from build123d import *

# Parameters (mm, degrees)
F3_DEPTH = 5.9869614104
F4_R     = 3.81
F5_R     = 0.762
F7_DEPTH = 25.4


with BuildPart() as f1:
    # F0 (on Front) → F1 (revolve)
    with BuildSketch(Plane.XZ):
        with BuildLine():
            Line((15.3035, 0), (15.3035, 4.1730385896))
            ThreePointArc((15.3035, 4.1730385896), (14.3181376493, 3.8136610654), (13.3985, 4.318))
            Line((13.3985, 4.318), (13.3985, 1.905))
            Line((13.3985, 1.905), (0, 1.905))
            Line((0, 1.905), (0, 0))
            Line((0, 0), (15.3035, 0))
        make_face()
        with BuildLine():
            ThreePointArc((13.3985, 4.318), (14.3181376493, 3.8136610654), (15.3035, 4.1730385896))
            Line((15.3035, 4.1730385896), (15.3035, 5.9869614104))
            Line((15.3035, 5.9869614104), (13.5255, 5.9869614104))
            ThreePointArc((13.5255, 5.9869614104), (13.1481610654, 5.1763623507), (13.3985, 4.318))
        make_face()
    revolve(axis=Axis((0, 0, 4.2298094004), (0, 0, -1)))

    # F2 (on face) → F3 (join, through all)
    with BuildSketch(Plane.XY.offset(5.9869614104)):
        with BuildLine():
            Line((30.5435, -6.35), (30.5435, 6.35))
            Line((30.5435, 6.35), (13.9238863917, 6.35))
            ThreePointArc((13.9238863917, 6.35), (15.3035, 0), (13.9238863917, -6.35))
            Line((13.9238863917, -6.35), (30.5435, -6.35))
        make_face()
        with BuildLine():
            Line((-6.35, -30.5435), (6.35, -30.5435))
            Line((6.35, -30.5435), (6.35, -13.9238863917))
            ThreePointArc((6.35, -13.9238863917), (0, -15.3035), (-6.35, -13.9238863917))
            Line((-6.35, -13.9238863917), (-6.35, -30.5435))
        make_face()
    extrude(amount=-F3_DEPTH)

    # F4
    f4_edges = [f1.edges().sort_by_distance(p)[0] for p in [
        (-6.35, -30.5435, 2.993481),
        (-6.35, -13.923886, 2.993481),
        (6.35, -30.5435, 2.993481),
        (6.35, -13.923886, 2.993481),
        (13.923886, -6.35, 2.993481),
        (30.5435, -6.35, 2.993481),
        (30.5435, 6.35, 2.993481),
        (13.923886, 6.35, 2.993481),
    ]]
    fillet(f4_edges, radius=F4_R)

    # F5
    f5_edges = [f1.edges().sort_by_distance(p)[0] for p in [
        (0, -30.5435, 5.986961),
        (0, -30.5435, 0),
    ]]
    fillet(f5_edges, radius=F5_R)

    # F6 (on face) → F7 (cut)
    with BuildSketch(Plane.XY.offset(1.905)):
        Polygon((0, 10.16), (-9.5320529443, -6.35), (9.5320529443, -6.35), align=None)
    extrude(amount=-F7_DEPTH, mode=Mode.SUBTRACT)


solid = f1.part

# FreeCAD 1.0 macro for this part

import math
import FreeCAD as App
import Part
import Sketcher
Q = App.Units.Quantity


def edges_at(feature, points):
    """Names of the edges that pass closest to the given points."""
    edges = feature.Shape.Edges
    near = lambda p: min(range(len(edges)), key=lambda i: edges[i].distToShape(Part.Vertex(*p))[0])
    return sorted({f"Edge{near(p) + 1}" for p in points})

doc = App.newDocument("Part")
params = doc.addObject("Spreadsheet::Sheet", "Params")
for row, (alias, value) in enumerate([
    ("sketch1_radius", "0.05 in"),
    ("sketch1_width", "0.07 in"),
    ("sketch1_height", "0.095 in"),
    ("sketch1_height2", "0.075 in"),
    ("revolution_angle", "360 deg"),
    ("sketch2_width", "0.5 in"),
    ("pad1_length", "5.986961 mm"),
    ("fillet_radius", "0.15 in"),
    ("fillet2_radius", "0.03 in"),
    ("pocket1_length", "1 in"),
], start=1):
    params.set(f"A{row}", alias)
    params.set(f"B{row}", "=" + value)
    params.setAlias(f"B{row}", alias)

body = doc.addObject("PartDesign::Body", "Body")

# Sketch on XZ plane
sketch1 = body.newObject("Sketcher::SketchObject", "Sketch")
sketch1.AttachmentSupport = (doc.getObject("XZ_Plane"), [""])
sketch1.MapMode = "FlatFace"
sketch1.addGeometry(Part.LineSegment(App.Vector(15.3, 0, 0), App.Vector(15.3, 6, 0)), False)
sketch1.addGeometry(Part.LineSegment(App.Vector(15.3, 6, 0), App.Vector(13.5, 6, 0)), False)
sketch1.addGeometry(Part.ArcOfCircle(Part.Circle(App.Vector(14.4, 5.1, 0), App.Vector(0, 0, 1), 1.3), math.radians(134), math.radians(217)), False)
sketch1.addGeometry(Part.LineSegment(App.Vector(13.4, 4.3, 0), App.Vector(13.4, 1.9, 0)), False)
sketch1.addGeometry(Part.LineSegment(App.Vector(13.4, 1.9, 0), App.Vector(0, 1.9, 0)), False)
sketch1.addGeometry(Part.LineSegment(App.Vector(0, 1.9, 0), App.Vector(0, 0, 0)), False)
sketch1.addGeometry(Part.LineSegment(App.Vector(0, 0, 0), App.Vector(15.3, 0, 0)), False)
sketch1.addConstraint(Sketcher.Constraint("Coincident", 0, 2, 1, 1))
sketch1.addConstraint(Sketcher.Constraint("Coincident", 1, 2, 2, 1))
sketch1.addConstraint(Sketcher.Constraint("Coincident", 2, 2, 3, 1))
sketch1.addConstraint(Sketcher.Constraint("Coincident", 3, 2, 4, 1))
sketch1.addConstraint(Sketcher.Constraint("Coincident", 4, 2, 5, 1))
sketch1.addConstraint(Sketcher.Constraint("Coincident", 5, 2, 6, 1))
sketch1.addConstraint(Sketcher.Constraint("Coincident", 6, 2, 0, 1))
sketch1.addConstraint(Sketcher.Constraint("Vertical", 0))
sketch1.addConstraint(Sketcher.Constraint("Horizontal", 1))
sketch1.addConstraint(Sketcher.Constraint("Vertical", 3))
sketch1.addConstraint(Sketcher.Constraint("Horizontal", 4))
sketch1.addConstraint(Sketcher.Constraint("Vertical", 5))
sketch1.addConstraint(Sketcher.Constraint("Horizontal", 6))
sketch1.addConstraint(Sketcher.Constraint("Coincident", 5, 2, -1, 1))
sketch1.addConstraint(Sketcher.Constraint("Radius", 2, Q("0.05 in")))
sketch1.addConstraint(Sketcher.Constraint("DistanceX", 1, 2, 1, 1, Q("0.07 in")))
sketch1.addConstraint(Sketcher.Constraint("DistanceY", -1, 1, 2, 3, Q("0.2 in")))
sketch1.addConstraint(Sketcher.Constraint("DistanceY", 3, 2, 3, 1, Q("0.095 in")))
sketch1.addConstraint(Sketcher.Constraint("DistanceY", 5, 2, 5, 1, Q("0.075 in")))
sketch1.addConstraint(Sketcher.Constraint("DistanceX", 4, 2, 4, 1, Q("0.5275 in")))
sketch1.addConstraint(Sketcher.Constraint("DistanceX", 6, 1, 6, 2, Q("0.6025 in")))
sketch1.setExpression("Constraints[14]", "Params.sketch1_radius")
sketch1.setExpression("Constraints[15]", "Params.sketch1_width")
sketch1.setExpression("Constraints[17]", "Params.sketch1_height")
sketch1.setExpression("Constraints[18]", "Params.sketch1_height2")
revolution = body.newObject("PartDesign::Revolution", "Revolution")
revolution.Profile = sketch1
revolution.ReferenceAxis = (sketch1, ["V_Axis"])
revolution.setExpression("Angle", "Params.revolution_angle")

# Sketch on XY plane
sketch2 = body.newObject("Sketcher::SketchObject", "Sketch001")
sketch2.AttachmentSupport = (doc.getObject("XY_Plane"), [""])
sketch2.MapMode = "FlatFace"
sketch2.AttachmentOffset = App.Placement(App.Vector(0, 0, 5.986961), App.Rotation())
sketch2.addGeometry(Part.LineSegment(App.Vector(31, -6, 0), App.Vector(31, 6, 0)), False)
sketch2.addGeometry(Part.LineSegment(App.Vector(31, 6, 0), App.Vector(14, 6, 0)), False)
sketch2.addGeometry(Part.ArcOfCircle(Part.Circle(App.Vector(0, 0, 0), App.Vector(0, 0, 1), 15), math.radians(-25), math.radians(25)), False)
sketch2.addGeometry(Part.LineSegment(App.Vector(14, -6, 0), App.Vector(31, -6, 0)), False)
sketch2.addGeometry(Part.LineSegment(App.Vector(-6, -31, 0), App.Vector(6, -31, 0)), False)
sketch2.addGeometry(Part.LineSegment(App.Vector(6, -31, 0), App.Vector(6, -14, 0)), False)
sketch2.addGeometry(Part.ArcOfCircle(Part.Circle(App.Vector(0, 0, 0), App.Vector(0, 0, 1), 15), math.radians(-115), math.radians(-65)), False)
sketch2.addGeometry(Part.LineSegment(App.Vector(-6, -14, 0), App.Vector(-6, -31, 0)), False)
sketch2.addConstraint(Sketcher.Constraint("Coincident", 0, 2, 1, 1))
sketch2.addConstraint(Sketcher.Constraint("Coincident", 1, 2, 2, 2))
sketch2.addConstraint(Sketcher.Constraint("Coincident", 2, 1, 3, 1))
sketch2.addConstraint(Sketcher.Constraint("Coincident", 3, 2, 0, 1))
sketch2.addConstraint(Sketcher.Constraint("Coincident", 4, 2, 5, 1))
sketch2.addConstraint(Sketcher.Constraint("Coincident", 5, 2, 6, 2))
sketch2.addConstraint(Sketcher.Constraint("Coincident", 6, 1, 7, 1))
sketch2.addConstraint(Sketcher.Constraint("Coincident", 7, 2, 4, 1))
sketch2.addConstraint(Sketcher.Constraint("Vertical", 0))
sketch2.addConstraint(Sketcher.Constraint("Horizontal", 1))
sketch2.addConstraint(Sketcher.Constraint("Horizontal", 3))
sketch2.addConstraint(Sketcher.Constraint("Horizontal", 4))
sketch2.addConstraint(Sketcher.Constraint("Vertical", 5))
sketch2.addConstraint(Sketcher.Constraint("Vertical", 7))
sketch2.addConstraint(Sketcher.Constraint("Coincident", 2, 3, -1, 1))
sketch2.addConstraint(Sketcher.Constraint("Coincident", 6, 3, -1, 1))
sketch2.addConstraint(Sketcher.Constraint("Equal", 2, 6))
sketch2.addConstraint(Sketcher.Constraint("Horizontal", 5, 2, 6, 1))
sketch2.addConstraint(Sketcher.Constraint("Vertical", 1, 2, 2, 1))
sketch2.addConstraint(Sketcher.Constraint("Equal", 4, 0))
sketch2.addConstraint(Sketcher.Constraint("Equal", 3, 5))
sketch2.addConstraint(Sketcher.Constraint("DistanceX", 4, 1, 4, 2, Q("0.5 in")))
sketch2.addConstraint(Sketcher.Constraint("Radius", 2, Q("0.6025 in")))
sketch2.addConstraint(Sketcher.Constraint("DistanceX", -1, 1, 0, 2, Q("1.2025 in")))
sketch2.setExpression("Constraints[21]", "Params.sketch2_width")
pad1 = body.newObject("PartDesign::Pad", "Pad")
pad1.Profile = sketch2
pad1.setExpression("Length", "Params.pad1_length")
pad1.Reversed = True
doc.recompute()

fillet = body.newObject("PartDesign::Fillet", "Fillet")
fillet.Base = (pad1, edges_at(pad1, [
    (-6.35, -30.544, 2.993),
    (-6.35, -13.924, 2.993),
    (6.35, -30.544, 2.993),
    (6.35, -13.924, 2.993),
    (13.924, -6.35, 2.993),
    (30.544, -6.35, 2.993),
    (30.544, 6.35, 2.993),
    (13.924, 6.35, 2.993),
]))
fillet.setExpression("Radius", "Params.fillet_radius")
doc.recompute()

fillet2 = body.newObject("PartDesign::Fillet", "Fillet001")
fillet2.Base = (fillet, edges_at(fillet, [(0, -30.544, 5.987), (0, -30.544, 0)]))
fillet2.setExpression("Radius", "Params.fillet2_radius")

# Sketch on XY plane
sketch3 = body.newObject("Sketcher::SketchObject", "Sketch002")
sketch3.AttachmentSupport = (doc.getObject("XY_Plane"), [""])
sketch3.MapMode = "FlatFace"
sketch3.AttachmentOffset = App.Placement(App.Vector(0, 0, 0.075 * 25.4), App.Rotation())
sketch3.addGeometry(Part.LineSegment(App.Vector(0, 10, 0), App.Vector(-10, -6, 0)), False)
sketch3.addGeometry(Part.LineSegment(App.Vector(-10, -6, 0), App.Vector(10, -6, 0)), False)
sketch3.addGeometry(Part.LineSegment(App.Vector(10, -6, 0), App.Vector(0, 10, 0)), False)
sketch3.addConstraint(Sketcher.Constraint("Coincident", 0, 2, 1, 1))
sketch3.addConstraint(Sketcher.Constraint("Coincident", 1, 2, 2, 1))
sketch3.addConstraint(Sketcher.Constraint("Coincident", 2, 2, 0, 1))
sketch3.addConstraint(Sketcher.Constraint("Horizontal", 1))
sketch3.addConstraint(Sketcher.Constraint("PointOnObject", 2, 2, -2))
sketch3.addConstraint(Sketcher.Constraint("Equal", 0, 2))
sketch3.addConstraint(Sketcher.Constraint("Angle", 0, Q("-120 deg")))
sketch3.addConstraint(Sketcher.Constraint("DistanceY", -1, 1, 2, 2, Q("0.4 in")))
sketch3.addConstraint(Sketcher.Constraint("DistanceY", 0, 2, -1, 1, Q("0.25 in")))
pocket1 = body.newObject("PartDesign::Pocket", "Pocket")
pocket1.Profile = sketch3
pocket1.setExpression("Length", "Params.pocket1_length")

doc.recompute()
